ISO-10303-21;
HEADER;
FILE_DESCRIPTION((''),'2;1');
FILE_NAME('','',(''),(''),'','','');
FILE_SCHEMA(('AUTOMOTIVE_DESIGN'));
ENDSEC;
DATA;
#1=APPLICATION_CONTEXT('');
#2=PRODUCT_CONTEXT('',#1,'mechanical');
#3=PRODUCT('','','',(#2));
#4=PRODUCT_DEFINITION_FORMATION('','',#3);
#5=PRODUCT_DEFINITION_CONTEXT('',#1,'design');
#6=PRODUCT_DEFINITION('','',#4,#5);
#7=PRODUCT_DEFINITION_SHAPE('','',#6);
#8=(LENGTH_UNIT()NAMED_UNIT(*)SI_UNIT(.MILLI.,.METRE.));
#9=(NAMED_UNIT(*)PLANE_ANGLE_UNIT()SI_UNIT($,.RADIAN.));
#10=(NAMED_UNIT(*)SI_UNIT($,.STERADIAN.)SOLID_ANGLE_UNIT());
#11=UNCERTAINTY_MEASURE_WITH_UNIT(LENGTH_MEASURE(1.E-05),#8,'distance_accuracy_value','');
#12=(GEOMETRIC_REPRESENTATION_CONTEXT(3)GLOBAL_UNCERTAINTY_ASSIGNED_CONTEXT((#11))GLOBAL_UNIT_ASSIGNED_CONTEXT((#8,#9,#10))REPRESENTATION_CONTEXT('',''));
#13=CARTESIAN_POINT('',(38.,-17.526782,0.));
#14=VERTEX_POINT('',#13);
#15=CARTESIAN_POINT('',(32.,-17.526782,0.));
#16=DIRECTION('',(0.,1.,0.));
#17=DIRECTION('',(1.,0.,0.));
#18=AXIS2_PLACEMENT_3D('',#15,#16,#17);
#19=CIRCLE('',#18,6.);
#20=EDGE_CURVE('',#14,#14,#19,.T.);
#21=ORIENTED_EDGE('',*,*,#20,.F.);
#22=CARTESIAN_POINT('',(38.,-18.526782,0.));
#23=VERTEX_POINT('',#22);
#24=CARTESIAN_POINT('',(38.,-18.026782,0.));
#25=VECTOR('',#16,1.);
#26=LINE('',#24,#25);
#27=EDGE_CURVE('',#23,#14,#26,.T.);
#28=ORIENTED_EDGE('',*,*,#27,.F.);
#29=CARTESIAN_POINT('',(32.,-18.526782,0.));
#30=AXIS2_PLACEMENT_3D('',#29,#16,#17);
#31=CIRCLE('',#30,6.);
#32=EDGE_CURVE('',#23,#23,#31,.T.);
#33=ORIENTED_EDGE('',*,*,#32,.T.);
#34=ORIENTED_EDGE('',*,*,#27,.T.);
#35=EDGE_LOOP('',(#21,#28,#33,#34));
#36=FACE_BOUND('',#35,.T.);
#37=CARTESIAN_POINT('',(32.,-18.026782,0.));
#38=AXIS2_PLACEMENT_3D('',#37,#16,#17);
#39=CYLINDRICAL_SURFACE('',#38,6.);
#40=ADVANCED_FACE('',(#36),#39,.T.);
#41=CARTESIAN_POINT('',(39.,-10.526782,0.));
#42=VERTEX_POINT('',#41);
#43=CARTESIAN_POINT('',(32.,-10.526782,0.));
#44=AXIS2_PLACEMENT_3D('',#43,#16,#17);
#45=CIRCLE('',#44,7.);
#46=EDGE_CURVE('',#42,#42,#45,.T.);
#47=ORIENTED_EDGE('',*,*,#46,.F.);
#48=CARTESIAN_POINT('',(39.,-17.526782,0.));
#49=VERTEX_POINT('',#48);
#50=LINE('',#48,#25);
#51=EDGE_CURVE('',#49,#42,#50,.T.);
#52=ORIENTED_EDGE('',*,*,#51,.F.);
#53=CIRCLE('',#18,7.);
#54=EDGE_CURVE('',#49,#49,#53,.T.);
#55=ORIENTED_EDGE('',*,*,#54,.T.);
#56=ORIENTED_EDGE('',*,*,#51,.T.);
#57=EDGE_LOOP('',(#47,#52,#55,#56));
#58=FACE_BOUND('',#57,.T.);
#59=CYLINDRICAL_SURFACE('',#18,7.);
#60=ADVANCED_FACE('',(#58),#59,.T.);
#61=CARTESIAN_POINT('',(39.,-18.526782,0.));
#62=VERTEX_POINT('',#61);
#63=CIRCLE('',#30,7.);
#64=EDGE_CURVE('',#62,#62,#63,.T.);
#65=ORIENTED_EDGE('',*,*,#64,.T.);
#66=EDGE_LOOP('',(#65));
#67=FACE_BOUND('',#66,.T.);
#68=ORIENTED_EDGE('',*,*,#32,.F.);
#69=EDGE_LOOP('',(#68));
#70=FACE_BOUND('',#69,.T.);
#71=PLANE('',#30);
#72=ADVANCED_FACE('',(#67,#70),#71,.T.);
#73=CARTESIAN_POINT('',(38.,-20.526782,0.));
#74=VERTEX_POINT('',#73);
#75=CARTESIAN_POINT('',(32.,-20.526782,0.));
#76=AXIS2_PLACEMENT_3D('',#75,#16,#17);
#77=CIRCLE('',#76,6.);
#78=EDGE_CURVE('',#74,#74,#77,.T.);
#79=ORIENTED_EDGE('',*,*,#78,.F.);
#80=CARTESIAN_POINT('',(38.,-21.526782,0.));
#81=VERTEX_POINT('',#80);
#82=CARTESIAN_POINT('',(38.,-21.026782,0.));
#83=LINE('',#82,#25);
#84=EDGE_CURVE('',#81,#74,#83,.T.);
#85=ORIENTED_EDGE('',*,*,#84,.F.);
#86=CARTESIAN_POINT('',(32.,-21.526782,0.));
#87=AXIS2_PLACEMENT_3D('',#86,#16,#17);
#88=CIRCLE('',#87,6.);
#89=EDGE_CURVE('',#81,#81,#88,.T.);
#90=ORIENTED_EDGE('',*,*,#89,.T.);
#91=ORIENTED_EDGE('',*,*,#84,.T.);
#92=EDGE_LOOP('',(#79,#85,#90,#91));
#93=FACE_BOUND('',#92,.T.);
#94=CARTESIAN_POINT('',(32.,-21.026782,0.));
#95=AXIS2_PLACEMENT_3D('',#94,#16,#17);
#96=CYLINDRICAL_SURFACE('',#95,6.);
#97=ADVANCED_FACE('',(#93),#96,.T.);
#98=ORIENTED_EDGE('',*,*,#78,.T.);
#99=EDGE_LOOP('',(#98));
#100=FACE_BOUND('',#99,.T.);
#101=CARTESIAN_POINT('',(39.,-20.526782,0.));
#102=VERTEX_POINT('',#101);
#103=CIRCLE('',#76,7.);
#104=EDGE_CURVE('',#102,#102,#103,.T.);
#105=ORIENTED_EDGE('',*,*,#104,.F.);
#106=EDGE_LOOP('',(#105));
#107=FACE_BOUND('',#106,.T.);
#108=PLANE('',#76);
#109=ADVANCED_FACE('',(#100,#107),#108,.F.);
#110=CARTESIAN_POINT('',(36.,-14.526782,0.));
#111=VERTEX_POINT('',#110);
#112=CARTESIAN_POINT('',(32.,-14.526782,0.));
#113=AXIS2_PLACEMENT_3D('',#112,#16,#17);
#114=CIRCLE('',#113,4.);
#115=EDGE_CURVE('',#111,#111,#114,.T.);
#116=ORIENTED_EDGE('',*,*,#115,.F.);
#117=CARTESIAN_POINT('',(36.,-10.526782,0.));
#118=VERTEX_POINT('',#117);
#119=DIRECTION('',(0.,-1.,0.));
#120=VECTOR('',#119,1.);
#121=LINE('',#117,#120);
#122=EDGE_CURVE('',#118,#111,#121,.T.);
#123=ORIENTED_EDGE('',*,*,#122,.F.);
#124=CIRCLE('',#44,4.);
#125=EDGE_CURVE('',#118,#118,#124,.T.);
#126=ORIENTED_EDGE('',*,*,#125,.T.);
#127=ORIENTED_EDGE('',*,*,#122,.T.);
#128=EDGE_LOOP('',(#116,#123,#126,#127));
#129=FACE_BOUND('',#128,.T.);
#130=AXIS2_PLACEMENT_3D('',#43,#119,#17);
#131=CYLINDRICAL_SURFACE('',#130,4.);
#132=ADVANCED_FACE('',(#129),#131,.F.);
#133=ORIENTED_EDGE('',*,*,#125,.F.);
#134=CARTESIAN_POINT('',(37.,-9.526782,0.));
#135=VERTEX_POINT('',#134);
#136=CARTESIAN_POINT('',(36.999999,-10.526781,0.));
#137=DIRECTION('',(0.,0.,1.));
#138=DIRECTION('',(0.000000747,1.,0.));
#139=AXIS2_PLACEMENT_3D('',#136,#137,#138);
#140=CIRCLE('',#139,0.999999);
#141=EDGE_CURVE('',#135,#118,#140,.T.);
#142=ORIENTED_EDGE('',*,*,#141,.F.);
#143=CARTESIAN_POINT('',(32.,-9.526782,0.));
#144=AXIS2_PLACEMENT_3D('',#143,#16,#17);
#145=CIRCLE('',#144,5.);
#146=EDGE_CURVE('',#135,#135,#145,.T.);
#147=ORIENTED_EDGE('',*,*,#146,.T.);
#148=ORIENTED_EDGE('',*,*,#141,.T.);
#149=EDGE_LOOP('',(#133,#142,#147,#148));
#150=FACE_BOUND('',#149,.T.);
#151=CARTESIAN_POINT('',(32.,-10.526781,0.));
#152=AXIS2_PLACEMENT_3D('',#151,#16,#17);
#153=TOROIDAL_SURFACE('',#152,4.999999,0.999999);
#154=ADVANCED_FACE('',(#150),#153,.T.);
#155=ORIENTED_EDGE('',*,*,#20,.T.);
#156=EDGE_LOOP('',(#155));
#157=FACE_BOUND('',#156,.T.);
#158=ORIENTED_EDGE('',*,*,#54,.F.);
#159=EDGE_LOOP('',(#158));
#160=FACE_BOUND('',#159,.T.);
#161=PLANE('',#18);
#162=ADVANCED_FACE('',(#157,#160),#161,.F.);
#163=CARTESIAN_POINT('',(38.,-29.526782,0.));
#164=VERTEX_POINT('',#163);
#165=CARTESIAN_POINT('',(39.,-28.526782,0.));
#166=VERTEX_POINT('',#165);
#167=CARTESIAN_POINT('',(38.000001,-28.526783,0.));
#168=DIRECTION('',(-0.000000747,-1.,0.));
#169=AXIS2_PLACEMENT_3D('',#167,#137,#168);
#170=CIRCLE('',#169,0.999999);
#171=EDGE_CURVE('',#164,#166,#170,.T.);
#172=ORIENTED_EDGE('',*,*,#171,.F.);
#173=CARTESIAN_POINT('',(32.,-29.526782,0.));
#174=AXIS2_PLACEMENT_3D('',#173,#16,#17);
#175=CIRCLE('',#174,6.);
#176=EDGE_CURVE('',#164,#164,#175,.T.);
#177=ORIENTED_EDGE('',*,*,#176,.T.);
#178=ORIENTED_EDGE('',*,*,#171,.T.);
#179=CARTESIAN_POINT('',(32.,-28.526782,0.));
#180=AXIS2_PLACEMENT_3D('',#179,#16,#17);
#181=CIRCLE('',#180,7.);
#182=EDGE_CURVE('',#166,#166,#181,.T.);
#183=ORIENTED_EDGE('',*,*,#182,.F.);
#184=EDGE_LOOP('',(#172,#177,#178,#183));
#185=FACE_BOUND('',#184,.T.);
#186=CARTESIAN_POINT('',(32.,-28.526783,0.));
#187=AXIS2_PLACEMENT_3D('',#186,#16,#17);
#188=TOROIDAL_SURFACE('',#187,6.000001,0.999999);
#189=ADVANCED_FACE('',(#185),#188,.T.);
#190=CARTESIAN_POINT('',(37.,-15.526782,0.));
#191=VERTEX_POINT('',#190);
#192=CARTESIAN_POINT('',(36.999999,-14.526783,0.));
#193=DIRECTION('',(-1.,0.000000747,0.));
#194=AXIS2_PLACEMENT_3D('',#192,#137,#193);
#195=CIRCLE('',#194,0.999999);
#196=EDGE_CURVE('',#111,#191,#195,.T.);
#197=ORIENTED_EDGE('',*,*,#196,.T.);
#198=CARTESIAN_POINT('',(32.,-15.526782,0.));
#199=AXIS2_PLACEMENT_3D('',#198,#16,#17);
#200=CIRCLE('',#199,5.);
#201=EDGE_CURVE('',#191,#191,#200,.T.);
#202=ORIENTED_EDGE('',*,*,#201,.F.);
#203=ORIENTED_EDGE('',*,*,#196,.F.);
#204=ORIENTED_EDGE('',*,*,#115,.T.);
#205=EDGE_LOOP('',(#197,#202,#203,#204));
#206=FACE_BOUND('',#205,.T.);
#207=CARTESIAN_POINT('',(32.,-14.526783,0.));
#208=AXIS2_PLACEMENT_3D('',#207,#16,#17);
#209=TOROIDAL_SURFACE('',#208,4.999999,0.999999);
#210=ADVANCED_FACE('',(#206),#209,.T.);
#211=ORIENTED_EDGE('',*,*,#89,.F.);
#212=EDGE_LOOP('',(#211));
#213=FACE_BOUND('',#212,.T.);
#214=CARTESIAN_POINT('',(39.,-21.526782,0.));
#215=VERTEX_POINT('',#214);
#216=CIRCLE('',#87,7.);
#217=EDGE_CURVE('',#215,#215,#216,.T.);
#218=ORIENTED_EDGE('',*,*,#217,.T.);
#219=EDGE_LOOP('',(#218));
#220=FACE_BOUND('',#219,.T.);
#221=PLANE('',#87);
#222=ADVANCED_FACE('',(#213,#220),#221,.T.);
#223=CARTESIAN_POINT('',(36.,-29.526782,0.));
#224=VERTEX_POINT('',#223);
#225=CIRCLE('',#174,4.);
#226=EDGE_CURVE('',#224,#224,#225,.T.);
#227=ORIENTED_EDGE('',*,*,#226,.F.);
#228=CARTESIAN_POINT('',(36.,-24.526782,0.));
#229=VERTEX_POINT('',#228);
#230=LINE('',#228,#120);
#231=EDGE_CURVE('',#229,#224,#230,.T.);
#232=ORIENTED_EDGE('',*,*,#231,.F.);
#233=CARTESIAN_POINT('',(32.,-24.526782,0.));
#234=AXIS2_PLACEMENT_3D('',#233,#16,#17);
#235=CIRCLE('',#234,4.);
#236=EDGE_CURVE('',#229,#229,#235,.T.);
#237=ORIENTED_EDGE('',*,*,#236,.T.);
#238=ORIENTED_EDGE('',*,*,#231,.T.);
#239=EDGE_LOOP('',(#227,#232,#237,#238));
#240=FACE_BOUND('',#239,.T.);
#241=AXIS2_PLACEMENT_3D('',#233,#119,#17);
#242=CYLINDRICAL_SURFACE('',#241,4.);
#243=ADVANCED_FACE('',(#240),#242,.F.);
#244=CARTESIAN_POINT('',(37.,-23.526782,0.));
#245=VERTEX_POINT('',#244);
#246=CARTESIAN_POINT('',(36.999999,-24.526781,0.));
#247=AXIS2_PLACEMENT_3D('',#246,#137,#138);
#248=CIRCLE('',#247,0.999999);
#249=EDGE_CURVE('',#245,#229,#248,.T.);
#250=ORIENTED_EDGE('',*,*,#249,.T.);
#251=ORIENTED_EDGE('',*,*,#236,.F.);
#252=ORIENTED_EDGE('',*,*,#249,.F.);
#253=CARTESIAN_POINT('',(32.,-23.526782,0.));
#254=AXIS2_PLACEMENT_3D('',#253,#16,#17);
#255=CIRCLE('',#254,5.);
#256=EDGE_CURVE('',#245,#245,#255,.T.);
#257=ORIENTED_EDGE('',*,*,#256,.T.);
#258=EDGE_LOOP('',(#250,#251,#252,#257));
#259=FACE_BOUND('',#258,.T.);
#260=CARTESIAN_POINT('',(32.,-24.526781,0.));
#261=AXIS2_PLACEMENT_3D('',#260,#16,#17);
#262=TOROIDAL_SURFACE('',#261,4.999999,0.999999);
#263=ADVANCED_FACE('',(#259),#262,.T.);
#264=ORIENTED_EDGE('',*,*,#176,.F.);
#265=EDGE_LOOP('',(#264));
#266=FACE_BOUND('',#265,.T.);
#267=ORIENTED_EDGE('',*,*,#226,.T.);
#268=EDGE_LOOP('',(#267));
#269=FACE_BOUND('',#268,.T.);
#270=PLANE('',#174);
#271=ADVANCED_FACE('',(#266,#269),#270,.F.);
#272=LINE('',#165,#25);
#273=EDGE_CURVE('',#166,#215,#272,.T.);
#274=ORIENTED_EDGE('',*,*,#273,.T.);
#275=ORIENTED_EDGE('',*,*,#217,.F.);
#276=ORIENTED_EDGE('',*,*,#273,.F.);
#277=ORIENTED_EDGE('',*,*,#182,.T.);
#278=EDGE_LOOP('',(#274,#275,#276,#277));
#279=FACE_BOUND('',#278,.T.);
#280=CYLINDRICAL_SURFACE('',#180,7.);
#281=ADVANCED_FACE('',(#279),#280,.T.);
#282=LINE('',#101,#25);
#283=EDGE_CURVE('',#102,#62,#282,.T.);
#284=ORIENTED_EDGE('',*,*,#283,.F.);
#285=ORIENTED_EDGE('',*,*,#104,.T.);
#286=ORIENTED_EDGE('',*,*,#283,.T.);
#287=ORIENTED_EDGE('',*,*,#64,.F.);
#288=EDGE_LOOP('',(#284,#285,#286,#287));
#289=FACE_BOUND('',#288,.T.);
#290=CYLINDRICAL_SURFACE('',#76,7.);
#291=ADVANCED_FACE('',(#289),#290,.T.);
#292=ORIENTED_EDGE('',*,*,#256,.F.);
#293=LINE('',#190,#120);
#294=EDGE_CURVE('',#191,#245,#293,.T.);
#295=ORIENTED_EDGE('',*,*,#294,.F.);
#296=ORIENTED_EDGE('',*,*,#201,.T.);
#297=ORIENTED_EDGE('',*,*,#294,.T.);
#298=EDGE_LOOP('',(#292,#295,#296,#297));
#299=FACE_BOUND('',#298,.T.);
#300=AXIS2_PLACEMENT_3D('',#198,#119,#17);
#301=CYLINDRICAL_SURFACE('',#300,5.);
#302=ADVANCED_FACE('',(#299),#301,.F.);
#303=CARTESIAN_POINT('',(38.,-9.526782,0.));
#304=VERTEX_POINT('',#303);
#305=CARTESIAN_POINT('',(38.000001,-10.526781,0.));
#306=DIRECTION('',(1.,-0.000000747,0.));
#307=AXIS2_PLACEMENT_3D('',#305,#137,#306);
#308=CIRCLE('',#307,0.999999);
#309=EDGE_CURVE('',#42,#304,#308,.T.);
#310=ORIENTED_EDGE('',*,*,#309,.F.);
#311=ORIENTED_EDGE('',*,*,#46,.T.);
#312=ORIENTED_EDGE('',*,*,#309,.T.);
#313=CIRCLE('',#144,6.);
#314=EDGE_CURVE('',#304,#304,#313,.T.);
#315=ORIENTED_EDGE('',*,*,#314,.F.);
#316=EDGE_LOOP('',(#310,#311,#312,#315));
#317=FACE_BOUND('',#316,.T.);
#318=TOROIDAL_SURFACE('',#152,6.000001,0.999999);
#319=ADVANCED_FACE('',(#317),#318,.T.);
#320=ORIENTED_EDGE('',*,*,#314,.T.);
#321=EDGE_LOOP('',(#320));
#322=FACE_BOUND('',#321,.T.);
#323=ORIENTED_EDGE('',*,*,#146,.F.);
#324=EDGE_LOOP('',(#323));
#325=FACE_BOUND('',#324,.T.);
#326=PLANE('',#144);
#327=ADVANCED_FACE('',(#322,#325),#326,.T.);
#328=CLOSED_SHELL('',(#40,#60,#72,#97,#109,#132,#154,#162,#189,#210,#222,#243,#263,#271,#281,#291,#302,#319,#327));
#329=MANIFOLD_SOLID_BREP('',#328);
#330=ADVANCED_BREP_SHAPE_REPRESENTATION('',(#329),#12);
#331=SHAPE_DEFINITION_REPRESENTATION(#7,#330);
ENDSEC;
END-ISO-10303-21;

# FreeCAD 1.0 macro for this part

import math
import FreeCAD as App
import Part
import Sketcher
Q = App.Units.Quantity

doc = App.newDocument("Part")
body = doc.addObject("PartDesign::Body", "Body")

sketch1 = body.newObject("Sketcher::SketchObject", "Sketch")
sketch1.AttachmentSupport = (doc.getObject("XY_Plane"), [""])
sketch1.MapMode = "FlatFace"
sketch1.addGeometry([
    Part.LineSegment(App.Vector(36, -22.5, 0), App.Vector(36, -27.5, 0)),
    Part.LineSegment(App.Vector(36, -27.5, 0), App.Vector(38, -27.5, 0)),
    Part.ArcOfCircle(Part.Circle(App.Vector(38, -26.5, 0), App.Vector(0, 0, 1), 1), math.radians(-90), math.radians(0)),
    Part.LineSegment(App.Vector(39, -26.5, 0), App.Vector(39, -19.5, 0)),
    Part.LineSegment(App.Vector(39, -19.5, 0), App.Vector(38, -19.5, 0)),
    Part.LineSegment(App.Vector(38, -19.5, 0), App.Vector(38, -18.5, 0)),
    Part.LineSegment(App.Vector(38, -18.5, 0), App.Vector(39, -18.5, 0)),
    Part.LineSegment(App.Vector(39, -18.5, 0), App.Vector(39, -16.5, 0)),
    Part.LineSegment(App.Vector(39, -16.5, 0), App.Vector(38, -16.5, 0)),
    Part.LineSegment(App.Vector(38, -16.5, 0), App.Vector(38, -15.5, 0)),
    Part.LineSegment(App.Vector(38, -15.5, 0), App.Vector(39, -15.5, 0)),
    Part.LineSegment(App.Vector(39, -15.5, 0), App.Vector(39, -8.5, 0)),
    Part.ArcOfCircle(Part.Circle(App.Vector(38, -8.5, 0), App.Vector(0, 0, 1), 1), math.radians(0), math.radians(90)),
    Part.LineSegment(App.Vector(38, -7.5, 0), App.Vector(37, -7.5, 0)),
    Part.ArcOfCircle(Part.Circle(App.Vector(37, -8.5, 0), App.Vector(0, 0, 1), 1), math.radians(90), math.radians(180)),
    Part.LineSegment(App.Vector(36, -8.5, 0), App.Vector(36, -12.5, 0)),
    Part.ArcOfCircle(Part.Circle(App.Vector(37, -12.5, 0), App.Vector(0, 0, 1), 1), math.radians(180), math.radians(270)),
    Part.LineSegment(App.Vector(37, -13.5, 0), App.Vector(37, -21.5, 0)),
    Part.ArcOfCircle(Part.Circle(App.Vector(37, -22.5, 0), App.Vector(0, 0, 1), 1), math.radians(90), math.radians(180)),
], False)
sketch1.addGeometry(Part.LineSegment(App.Vector(32, -27.5, 0), App.Vector(32, -7.5, 0)), True)
sketch1.addConstraint([
    Sketcher.Constraint("Coincident", 0, 2, 1, 1),
    Sketcher.Constraint("Tangent", 1, 2, 2, 1),
    Sketcher.Constraint("Tangent", 2, 2, 3, 1),
    Sketcher.Constraint("Coincident", 3, 2, 4, 1),
    Sketcher.Constraint("Coincident", 4, 2, 5, 1),
    Sketcher.Constraint("Coincident", 5, 2, 6, 1),
    Sketcher.Constraint("Coincident", 6, 2, 7, 1),
    Sketcher.Constraint("Coincident", 7, 2, 8, 1),
    Sketcher.Constraint("Coincident", 8, 2, 9, 1),
    Sketcher.Constraint("Coincident", 9, 2, 10, 1),
    Sketcher.Constraint("Coincident", 10, 2, 11, 1),
    Sketcher.Constraint("Tangent", 11, 2, 12, 1),
    Sketcher.Constraint("Tangent", 12, 2, 13, 1),
    Sketcher.Constraint("Tangent", 13, 2, 14, 1),
    Sketcher.Constraint("Tangent", 14, 2, 15, 1),
    Sketcher.Constraint("Tangent", 15, 2, 16, 1),
    Sketcher.Constraint("Coincident", 16, 2, 17, 1),
    Sketcher.Constraint("Coincident", 17, 2, 18, 1),
    Sketcher.Constraint("Tangent", 18, 2, 0, 1),
    Sketcher.Constraint("Vertical", 0),
    Sketcher.Constraint("Horizontal", 1),
    Sketcher.Constraint("Vertical", 3),
    Sketcher.Constraint("Horizontal", 4),
    Sketcher.Constraint("Vertical", 5),
    Sketcher.Constraint("Horizontal", 6),
    Sketcher.Constraint("Vertical", 7),
    Sketcher.Constraint("Horizontal", 8),
    Sketcher.Constraint("Vertical", 9),
    Sketcher.Constraint("Horizontal", 10),
    Sketcher.Constraint("Vertical", 11),
    Sketcher.Constraint("Horizontal", 13),
    Sketcher.Constraint("Vertical", 15),
    Sketcher.Constraint("Vertical", 17),
    Sketcher.Constraint("Vertical", 19),
    Sketcher.Constraint("Equal", 2, 12),
    Sketcher.Constraint("Equal", 12, 14),
    Sketcher.Constraint("Equal", 14, 16),
    Sketcher.Constraint("Equal", 16, 18),
    Sketcher.Constraint("Horizontal", 1, 2, 19, 1),
    Sketcher.Constraint("Horizontal", 13, 2, 19, 2),
    Sketcher.Constraint("Vertical", 2, 3, 12, 3),
    Sketcher.Constraint("Vertical", 16, 3, 18, 3),
    Sketcher.Constraint("Vertical", 1, 2, 4, 2),
    Sketcher.Constraint("Vertical", 3, 2, 6, 2),
    Sketcher.Constraint("Vertical", 5, 2, 8, 2),
    Sketcher.Constraint("Vertical", 13, 2, 16, 2),
    Sketcher.Constraint("Equal", 10, 13),
    Sketcher.Constraint("Equal", 13, 5),
    Sketcher.Constraint("Equal", 1, 7),
    Sketcher.Constraint("Equal", 5, 9),
    Sketcher.Constraint("Equal", 3, 11),
    Sketcher.Constraint("Radius", 2, Q("0.999999 mm")),
    Sketcher.Constraint("DistanceY", 0, 2, 0, 1, Q("5 mm")),
    Sketcher.Constraint("DistanceY", 3, 1, 3, 2, Q("7 mm")),
    Sketcher.Constraint("DistanceY", 15, 2, 15, 1, Q("4 mm")),
    Sketcher.Constraint("DistanceX", -1, 1, 2, 3, Q("38.000001 mm")),
    Sketcher.Constraint("DistanceX", -1, 1, 19, 1, Q("32 mm")),
    Sketcher.Constraint("DistanceY", 12, 3, -1, 1, Q("8.526781 mm")),
])
revolution = body.newObject("PartDesign::Revolution", "Revolution")
revolution.Profile = sketch1
revolution.ReferenceAxis = (sketch1, ["Axis0"])
revolution.Angle = 360
body2 = doc.addObject("PartDesign::Body", "Body001")
doc.recompute()

body.Placement = App.Placement(App.Vector(0, -2, 0), App.Rotation(App.Vector(0, 0, 1), 0))
boolean = body2.newObject("PartDesign::Boolean", "Boolean")
boolean.Type = "Fuse"
boolean.addObjects([body])

doc.recompute()
